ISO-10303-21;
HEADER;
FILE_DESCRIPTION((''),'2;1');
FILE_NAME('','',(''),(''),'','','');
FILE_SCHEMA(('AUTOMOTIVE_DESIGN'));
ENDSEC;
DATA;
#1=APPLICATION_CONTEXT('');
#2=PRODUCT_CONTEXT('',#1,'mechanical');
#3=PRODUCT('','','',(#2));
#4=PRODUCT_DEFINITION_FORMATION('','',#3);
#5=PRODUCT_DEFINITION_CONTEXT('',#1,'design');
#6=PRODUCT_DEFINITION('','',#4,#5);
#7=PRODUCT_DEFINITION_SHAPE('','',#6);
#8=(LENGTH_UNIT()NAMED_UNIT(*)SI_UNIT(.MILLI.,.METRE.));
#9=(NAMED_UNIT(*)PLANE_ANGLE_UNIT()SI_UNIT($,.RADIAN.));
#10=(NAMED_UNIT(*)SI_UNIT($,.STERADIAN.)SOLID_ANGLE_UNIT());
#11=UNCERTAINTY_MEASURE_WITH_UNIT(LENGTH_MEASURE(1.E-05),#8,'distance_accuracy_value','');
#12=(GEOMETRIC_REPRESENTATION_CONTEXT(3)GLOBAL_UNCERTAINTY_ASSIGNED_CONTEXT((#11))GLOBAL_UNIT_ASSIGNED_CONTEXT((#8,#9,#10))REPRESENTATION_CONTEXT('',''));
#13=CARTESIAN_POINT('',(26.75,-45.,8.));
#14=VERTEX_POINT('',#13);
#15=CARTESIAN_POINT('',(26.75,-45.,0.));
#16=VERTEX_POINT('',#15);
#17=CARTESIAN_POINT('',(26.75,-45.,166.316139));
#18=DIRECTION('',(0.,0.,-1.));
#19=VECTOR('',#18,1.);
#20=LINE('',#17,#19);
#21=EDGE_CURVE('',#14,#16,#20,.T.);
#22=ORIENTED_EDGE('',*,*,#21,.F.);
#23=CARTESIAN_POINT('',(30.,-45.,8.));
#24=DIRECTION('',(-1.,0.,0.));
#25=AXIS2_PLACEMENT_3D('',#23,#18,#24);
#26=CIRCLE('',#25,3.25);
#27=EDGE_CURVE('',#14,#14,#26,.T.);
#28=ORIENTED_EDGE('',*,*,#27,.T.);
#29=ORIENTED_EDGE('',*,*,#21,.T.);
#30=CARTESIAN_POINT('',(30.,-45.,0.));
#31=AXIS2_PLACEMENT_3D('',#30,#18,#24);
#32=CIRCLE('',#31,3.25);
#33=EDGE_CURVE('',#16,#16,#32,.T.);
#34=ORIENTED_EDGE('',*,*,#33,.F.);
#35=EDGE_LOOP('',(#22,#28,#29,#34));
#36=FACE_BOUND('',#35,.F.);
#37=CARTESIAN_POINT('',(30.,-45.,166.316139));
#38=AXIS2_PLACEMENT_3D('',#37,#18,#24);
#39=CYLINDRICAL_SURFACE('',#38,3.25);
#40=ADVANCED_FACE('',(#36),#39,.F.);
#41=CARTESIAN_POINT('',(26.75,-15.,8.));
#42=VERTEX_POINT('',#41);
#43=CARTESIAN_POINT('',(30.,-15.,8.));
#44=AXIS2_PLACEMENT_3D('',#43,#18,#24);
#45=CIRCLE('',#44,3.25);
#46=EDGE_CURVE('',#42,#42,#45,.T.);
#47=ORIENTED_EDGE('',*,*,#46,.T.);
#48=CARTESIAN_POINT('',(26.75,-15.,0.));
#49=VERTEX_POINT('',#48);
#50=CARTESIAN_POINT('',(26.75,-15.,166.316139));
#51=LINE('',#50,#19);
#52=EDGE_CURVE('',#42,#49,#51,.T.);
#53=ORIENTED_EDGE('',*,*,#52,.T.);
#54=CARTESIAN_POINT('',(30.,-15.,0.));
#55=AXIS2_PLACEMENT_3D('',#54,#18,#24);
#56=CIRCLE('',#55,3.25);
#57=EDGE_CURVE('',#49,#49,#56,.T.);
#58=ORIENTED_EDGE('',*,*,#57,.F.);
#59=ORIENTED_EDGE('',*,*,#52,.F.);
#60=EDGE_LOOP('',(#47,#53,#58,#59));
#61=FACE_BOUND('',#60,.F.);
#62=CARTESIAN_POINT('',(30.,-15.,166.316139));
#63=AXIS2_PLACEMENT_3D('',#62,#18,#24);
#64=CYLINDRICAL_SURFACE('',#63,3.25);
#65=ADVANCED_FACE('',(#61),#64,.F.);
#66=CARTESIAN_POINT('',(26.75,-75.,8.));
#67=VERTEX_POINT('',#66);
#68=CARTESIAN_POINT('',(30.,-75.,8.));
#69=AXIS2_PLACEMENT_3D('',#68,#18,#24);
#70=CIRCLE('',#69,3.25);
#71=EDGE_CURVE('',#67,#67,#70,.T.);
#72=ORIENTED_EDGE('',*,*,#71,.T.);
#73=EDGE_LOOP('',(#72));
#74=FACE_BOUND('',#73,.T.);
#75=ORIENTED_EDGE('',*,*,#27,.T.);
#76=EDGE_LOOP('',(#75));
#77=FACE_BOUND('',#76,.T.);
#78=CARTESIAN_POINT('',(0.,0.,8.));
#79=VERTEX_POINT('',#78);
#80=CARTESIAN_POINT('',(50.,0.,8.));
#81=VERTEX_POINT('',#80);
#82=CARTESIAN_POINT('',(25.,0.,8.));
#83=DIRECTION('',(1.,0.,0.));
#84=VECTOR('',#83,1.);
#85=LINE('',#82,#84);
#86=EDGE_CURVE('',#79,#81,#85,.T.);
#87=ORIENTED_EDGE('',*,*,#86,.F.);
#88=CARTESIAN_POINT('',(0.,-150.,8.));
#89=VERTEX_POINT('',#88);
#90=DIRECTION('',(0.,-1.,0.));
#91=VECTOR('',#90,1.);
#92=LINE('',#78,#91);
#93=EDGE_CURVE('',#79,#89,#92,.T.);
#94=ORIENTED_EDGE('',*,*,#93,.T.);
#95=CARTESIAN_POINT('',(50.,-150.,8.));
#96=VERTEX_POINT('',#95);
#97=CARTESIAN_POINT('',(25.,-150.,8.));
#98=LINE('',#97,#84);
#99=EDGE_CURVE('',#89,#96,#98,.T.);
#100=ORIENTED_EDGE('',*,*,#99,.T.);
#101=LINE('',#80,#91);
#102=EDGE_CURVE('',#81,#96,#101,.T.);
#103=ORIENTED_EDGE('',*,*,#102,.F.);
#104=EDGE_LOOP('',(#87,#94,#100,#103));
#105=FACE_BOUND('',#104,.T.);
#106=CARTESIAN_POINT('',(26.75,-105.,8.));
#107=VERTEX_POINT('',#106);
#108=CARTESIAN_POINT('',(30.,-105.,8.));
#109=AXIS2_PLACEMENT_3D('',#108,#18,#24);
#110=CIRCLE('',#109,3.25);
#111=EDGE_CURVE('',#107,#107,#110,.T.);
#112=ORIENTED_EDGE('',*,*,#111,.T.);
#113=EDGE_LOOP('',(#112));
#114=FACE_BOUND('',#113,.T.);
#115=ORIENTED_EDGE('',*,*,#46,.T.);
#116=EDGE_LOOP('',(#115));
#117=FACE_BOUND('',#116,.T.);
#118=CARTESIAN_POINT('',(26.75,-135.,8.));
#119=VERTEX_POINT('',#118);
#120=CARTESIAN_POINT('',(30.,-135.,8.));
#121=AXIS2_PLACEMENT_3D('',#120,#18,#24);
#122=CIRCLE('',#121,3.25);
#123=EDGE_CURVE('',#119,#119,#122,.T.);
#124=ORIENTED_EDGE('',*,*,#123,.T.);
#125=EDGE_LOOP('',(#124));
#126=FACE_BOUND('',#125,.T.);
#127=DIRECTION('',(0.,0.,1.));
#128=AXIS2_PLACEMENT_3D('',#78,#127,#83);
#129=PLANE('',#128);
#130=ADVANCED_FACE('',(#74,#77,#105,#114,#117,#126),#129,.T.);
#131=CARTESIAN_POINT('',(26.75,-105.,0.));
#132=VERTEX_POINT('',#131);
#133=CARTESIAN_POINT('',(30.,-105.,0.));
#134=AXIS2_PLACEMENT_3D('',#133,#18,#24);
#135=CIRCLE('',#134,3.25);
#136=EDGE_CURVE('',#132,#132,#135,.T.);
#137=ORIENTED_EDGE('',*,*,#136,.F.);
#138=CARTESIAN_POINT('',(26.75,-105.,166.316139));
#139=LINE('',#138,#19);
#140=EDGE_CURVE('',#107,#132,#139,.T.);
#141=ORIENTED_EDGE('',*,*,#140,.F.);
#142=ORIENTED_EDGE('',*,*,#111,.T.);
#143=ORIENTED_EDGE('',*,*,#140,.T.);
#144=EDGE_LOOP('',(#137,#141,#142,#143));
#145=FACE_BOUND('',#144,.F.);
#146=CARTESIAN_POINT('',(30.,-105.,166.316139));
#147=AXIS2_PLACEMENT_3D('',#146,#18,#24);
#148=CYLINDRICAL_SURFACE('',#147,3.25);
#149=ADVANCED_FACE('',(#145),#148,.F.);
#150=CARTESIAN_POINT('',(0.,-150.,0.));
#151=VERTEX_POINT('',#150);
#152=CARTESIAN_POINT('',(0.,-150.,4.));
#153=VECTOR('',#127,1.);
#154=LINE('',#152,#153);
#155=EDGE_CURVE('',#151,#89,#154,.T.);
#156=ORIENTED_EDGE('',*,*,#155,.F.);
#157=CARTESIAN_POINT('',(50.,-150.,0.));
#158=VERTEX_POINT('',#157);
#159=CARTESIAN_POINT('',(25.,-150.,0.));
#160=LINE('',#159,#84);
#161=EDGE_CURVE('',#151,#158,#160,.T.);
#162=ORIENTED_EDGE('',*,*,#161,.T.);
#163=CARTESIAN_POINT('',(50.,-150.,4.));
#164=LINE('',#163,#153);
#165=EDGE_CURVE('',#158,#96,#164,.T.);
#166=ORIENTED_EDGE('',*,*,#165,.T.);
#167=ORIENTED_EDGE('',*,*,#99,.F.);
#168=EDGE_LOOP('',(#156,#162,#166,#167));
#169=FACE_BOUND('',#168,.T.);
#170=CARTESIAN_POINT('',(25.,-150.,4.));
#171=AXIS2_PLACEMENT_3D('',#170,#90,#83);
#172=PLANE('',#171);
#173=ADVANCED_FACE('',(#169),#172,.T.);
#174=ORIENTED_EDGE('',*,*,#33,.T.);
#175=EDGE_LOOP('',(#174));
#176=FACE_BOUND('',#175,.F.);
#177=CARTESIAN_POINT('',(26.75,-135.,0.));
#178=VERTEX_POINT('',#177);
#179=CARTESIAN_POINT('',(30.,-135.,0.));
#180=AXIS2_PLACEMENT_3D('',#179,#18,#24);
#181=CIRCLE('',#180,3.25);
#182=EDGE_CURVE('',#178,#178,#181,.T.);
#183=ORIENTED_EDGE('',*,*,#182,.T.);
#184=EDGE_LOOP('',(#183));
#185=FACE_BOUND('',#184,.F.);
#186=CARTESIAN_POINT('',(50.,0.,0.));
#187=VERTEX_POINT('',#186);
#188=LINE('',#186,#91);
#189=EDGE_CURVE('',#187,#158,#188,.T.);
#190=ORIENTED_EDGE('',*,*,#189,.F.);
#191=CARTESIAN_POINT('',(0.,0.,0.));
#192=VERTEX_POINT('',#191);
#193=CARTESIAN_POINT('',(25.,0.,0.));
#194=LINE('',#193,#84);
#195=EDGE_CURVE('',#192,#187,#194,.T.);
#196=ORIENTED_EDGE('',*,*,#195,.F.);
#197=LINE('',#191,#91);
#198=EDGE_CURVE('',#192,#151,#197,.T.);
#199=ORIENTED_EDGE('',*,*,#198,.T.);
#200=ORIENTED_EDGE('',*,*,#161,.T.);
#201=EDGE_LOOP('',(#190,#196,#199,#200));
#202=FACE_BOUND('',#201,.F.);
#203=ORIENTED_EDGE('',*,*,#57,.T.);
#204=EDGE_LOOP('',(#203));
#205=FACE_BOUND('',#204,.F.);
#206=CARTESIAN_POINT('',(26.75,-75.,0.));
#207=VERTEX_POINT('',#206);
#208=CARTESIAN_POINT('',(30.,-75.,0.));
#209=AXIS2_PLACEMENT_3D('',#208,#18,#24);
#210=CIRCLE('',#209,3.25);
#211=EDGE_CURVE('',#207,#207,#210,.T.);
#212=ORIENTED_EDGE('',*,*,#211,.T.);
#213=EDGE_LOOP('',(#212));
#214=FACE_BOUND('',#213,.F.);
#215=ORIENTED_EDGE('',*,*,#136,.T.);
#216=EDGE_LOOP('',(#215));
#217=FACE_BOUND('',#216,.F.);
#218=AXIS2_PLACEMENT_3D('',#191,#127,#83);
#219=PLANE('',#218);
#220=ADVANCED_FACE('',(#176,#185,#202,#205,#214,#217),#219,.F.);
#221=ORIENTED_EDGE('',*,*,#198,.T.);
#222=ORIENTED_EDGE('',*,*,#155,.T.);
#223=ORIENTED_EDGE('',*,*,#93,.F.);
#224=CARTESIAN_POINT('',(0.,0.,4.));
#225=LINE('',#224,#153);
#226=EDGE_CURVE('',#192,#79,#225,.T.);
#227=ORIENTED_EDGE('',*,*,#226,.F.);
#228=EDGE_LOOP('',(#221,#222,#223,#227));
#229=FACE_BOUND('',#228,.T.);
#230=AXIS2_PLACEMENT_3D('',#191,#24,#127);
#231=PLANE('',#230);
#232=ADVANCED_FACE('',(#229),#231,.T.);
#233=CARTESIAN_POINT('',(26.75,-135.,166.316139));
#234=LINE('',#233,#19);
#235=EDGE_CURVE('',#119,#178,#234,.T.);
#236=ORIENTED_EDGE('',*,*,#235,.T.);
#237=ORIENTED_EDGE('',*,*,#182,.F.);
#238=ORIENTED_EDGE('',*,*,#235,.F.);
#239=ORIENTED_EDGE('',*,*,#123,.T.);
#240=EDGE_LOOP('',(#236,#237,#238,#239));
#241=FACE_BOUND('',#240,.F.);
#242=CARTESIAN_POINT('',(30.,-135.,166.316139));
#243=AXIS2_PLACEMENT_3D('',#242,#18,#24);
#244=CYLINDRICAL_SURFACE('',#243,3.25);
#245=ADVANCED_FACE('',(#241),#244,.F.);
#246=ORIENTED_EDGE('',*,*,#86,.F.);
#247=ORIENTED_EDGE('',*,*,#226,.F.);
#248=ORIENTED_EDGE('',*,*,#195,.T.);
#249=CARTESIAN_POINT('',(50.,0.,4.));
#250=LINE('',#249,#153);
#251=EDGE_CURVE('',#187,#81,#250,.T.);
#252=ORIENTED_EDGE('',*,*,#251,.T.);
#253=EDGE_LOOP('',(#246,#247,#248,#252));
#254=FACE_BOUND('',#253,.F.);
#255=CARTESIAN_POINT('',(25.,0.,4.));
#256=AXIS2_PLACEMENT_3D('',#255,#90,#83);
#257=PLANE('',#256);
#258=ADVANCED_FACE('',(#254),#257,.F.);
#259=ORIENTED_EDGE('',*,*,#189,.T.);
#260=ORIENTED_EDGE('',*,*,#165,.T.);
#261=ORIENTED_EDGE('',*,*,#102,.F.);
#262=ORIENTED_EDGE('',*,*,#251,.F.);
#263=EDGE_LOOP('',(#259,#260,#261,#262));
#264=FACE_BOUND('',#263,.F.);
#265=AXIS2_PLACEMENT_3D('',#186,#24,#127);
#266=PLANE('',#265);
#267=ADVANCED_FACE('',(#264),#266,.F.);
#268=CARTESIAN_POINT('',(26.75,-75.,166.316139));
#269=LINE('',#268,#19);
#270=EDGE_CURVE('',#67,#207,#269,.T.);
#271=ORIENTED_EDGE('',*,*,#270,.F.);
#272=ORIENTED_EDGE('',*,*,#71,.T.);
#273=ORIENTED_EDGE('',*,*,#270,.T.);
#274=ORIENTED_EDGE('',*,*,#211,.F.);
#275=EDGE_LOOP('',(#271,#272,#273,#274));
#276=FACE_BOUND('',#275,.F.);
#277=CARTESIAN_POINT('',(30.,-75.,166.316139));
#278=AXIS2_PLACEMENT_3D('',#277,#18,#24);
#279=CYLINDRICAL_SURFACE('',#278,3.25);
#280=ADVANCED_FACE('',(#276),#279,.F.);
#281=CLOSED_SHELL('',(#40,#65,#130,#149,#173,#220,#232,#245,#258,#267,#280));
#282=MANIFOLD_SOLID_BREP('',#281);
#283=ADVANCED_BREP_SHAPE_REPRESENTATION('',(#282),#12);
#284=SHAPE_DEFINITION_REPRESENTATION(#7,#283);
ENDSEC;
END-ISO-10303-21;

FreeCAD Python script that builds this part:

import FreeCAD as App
import Part
import Sketcher

V = App.Vector

doc = App.newDocument("Part")
body = doc.addObject("PartDesign::Body", "Body")

# Sketch on XZ plane
sketch1 = body.newObject("Sketcher::SketchObject", "Sketch")
sketch1.AttachmentSupport = (doc.getObject("XZ_Plane"), [""])
sketch1.MapMode = "FlatFace"
sketch1.addGeometry(Part.LineSegment(V(0, 8, 0), V(0, 0, 0)), False)
sketch1.addGeometry(Part.LineSegment(V(0, 0, 0), V(50, 0, 0)), False)
sketch1.addGeometry(Part.LineSegment(V(50, 0, 0), V(50, 8, 0)), False)
sketch1.addGeometry(Part.LineSegment(V(50, 8, 0), V(0, 8, 0)), False)
sketch1.addConstraint(Sketcher.Constraint("Coincident", 0, 2, 1, 1))
sketch1.addConstraint(Sketcher.Constraint("Coincident", 1, 2, 2, 1))
sketch1.addConstraint(Sketcher.Constraint("Coincident", 2, 2, 3, 1))
sketch1.addConstraint(Sketcher.Constraint("Coincident", 3, 2, 0, 1))
sketch1.addConstraint(Sketcher.Constraint("Vertical", 0))
sketch1.addConstraint(Sketcher.Constraint("Horizontal", 1))
sketch1.addConstraint(Sketcher.Constraint("Vertical", 2))
sketch1.addConstraint(Sketcher.Constraint("Horizontal", 3))
sketch1.addConstraint(Sketcher.Constraint("Coincident", 0, 2, -1, 1))
sketch1.addConstraint(Sketcher.Constraint("DistanceX", 1, 1, 1, 2, 50.0))
sketch1.addConstraint(Sketcher.Constraint("DistanceY", 0, 2, 0, 1, 8.0))
pad1 = body.newObject("PartDesign::Pad", "Pad")
pad1.Profile = sketch1
pad1.Length = 150

# Sketch on XY plane
sketch2 = body.newObject("Sketcher::SketchObject", "Sketch001")
sketch2.AttachmentSupport = (doc.getObject("XY_Plane"), [""])
sketch2.MapMode = "FlatFace"
sketch2.AttachmentOffset = App.Placement(V(0, 0, 8), App.Rotation())
sketch2.addGeometry(Part.Circle(V(30, -15, 0), V(0, 0, 1), 3.25), False)
sketch2.addGeometry(Part.Circle(V(30, -45, 0), V(0, 0, 1), 3.25), False)
sketch2.addGeometry(Part.Circle(V(30, -75, 0), V(0, 0, 1), 3.25), False)
sketch2.addGeometry(Part.Circle(V(30, -105, 0), V(0, 0, 1), 3.25), False)
sketch2.addGeometry(Part.Circle(V(30, -135, 0), V(0, 0, 1), 3.25), False)
sketch2.addConstraint(Sketcher.Constraint("Equal", 0, 1))
sketch2.addConstraint(Sketcher.Constraint("Equal", 1, 2))
sketch2.addConstraint(Sketcher.Constraint("Equal", 2, 3))
sketch2.addConstraint(Sketcher.Constraint("Equal", 3, 4))
sketch2.addConstraint(Sketcher.Constraint("Vertical", 0, 3, 1, 3))
sketch2.addConstraint(Sketcher.Constraint("Vertical", 1, 3, 2, 3))
sketch2.addConstraint(Sketcher.Constraint("Vertical", 2, 3, 3, 3))
sketch2.addConstraint(Sketcher.Constraint("Vertical", 3, 3, 4, 3))
sketch2.addConstraint(Sketcher.Constraint("Diameter", 0, 6.5))
sketch2.addConstraint(Sketcher.Constraint("DistanceX", -1, 1, 0, 3, 30.0))
sketch2.addConstraint(Sketcher.Constraint("DistanceY", 0, 3, -1, 1, 15.0))
sketch2.addConstraint(Sketcher.Constraint("DistanceY", 1, 3, -1, 1, 45.0))
sketch2.addConstraint(Sketcher.Constraint("DistanceY", 2, 3, -1, 1, 75.0))
sketch2.addConstraint(Sketcher.Constraint("DistanceY", 3, 3, -1, 1, 105.0))
sketch2.addConstraint(Sketcher.Constraint("DistanceY", 4, 3, -1, 1, 135.0))
doc.recompute()
hole = body.newObject("PartDesign::Hole", "Hole")
hole.Profile = sketch2
hole.ThreadType = "None"
hole.Diameter = 6.5
hole.DepthType = "ThroughAll"

doc.recompute()
